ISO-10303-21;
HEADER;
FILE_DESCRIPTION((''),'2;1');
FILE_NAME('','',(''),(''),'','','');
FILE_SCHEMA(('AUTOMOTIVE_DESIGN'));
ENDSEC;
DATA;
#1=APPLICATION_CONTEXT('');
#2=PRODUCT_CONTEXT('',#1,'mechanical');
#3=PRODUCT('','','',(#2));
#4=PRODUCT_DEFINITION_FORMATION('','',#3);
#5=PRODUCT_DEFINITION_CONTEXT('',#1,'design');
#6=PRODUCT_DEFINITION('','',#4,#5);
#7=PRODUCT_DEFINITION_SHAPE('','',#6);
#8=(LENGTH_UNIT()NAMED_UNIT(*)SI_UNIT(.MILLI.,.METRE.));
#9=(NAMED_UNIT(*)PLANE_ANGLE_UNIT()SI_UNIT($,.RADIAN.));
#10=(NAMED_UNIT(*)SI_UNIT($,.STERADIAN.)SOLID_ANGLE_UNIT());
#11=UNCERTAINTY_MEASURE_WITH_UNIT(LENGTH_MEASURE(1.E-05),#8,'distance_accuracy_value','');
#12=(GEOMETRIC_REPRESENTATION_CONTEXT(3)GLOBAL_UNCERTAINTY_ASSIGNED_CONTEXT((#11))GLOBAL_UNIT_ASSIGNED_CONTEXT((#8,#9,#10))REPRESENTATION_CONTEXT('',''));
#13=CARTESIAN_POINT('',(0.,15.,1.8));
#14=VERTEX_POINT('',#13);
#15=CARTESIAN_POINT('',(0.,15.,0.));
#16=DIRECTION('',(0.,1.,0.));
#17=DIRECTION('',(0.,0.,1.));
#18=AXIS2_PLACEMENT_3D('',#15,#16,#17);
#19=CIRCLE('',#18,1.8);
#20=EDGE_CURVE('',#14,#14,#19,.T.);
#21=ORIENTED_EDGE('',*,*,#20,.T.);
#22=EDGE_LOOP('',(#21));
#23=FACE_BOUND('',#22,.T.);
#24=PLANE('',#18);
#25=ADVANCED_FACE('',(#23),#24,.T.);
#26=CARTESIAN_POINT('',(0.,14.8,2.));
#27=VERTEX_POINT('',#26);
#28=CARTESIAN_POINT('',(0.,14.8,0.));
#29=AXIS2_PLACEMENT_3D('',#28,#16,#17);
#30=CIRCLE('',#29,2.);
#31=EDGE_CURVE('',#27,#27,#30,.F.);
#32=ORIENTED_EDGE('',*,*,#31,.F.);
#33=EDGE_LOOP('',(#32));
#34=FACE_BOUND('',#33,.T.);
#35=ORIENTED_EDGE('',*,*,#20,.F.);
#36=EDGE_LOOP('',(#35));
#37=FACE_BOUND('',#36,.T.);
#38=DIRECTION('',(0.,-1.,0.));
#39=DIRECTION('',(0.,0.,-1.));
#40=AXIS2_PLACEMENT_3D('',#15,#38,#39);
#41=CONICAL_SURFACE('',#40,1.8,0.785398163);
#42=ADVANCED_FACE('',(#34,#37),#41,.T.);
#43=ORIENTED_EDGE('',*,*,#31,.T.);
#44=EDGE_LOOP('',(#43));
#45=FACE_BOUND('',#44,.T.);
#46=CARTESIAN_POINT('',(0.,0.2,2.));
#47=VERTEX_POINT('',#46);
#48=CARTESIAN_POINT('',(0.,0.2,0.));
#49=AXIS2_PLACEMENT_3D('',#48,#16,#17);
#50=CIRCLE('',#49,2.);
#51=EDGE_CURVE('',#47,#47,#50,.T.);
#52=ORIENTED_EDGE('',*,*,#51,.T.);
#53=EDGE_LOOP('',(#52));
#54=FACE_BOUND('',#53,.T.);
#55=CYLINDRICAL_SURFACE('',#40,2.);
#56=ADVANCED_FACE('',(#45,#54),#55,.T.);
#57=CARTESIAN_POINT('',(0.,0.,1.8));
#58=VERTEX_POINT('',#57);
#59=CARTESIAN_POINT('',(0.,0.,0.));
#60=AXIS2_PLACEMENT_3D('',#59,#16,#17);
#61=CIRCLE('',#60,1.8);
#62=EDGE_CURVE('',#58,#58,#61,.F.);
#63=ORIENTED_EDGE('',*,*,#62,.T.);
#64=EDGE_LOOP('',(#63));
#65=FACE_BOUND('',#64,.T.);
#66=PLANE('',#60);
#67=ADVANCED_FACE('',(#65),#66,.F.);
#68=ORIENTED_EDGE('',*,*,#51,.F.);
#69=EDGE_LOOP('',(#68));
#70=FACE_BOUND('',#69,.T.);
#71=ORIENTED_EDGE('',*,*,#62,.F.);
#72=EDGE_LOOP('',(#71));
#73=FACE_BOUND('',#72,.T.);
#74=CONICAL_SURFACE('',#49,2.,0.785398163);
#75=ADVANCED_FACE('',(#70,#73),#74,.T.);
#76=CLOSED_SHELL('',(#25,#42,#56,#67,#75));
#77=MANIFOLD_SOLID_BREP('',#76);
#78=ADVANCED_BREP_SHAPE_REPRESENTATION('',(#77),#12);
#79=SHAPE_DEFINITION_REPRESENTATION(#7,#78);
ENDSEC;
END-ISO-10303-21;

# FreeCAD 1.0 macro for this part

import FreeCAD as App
import Part
import Sketcher


def edges_at(feature, points):
    """Names of the edges that pass closest to the given points."""
    edges = feature.Shape.Edges
    near = lambda p: min(range(len(edges)), key=lambda i: edges[i].distToShape(Part.Vertex(*p))[0])
    return sorted({f"Edge{near(p) + 1}" for p in points})

doc = App.newDocument("Part")
body = doc.addObject("PartDesign::Body", "Body")

# Sketch on XZ plane
sketch1 = doc.addObject("Sketcher::SketchObject", "Sketch")
body.addObject(sketch1)
sketch1.AttachmentSupport = (doc.XZ_Plane, [""])
sketch1.MapMode = "FlatFace"
sketch1.addGeometry(Part.Circle(App.Vector(0, 0, 0), App.Vector(0, 0, 1), 2), False)
sketch1.addConstraint([
    Sketcher.Constraint("Coincident", 0, 3, -1, 1),
    Sketcher.Constraint("Diameter", 0, 4.0),
])
pad1 = doc.addObject("PartDesign::Pad", "Pad")
body.addObject(pad1)
pad1.Profile = sketch1
pad1.Length = 15
pad1.Reversed = True
doc.recompute()

chamfer = doc.addObject("PartDesign::Chamfer", "Chamfer")
body.addObject(chamfer)
chamfer.Base = (pad1, edges_at(pad1, [(-2, 0, 0), (-2, 15, 0)]))
chamfer.Size = 0.2

doc.recompute()
